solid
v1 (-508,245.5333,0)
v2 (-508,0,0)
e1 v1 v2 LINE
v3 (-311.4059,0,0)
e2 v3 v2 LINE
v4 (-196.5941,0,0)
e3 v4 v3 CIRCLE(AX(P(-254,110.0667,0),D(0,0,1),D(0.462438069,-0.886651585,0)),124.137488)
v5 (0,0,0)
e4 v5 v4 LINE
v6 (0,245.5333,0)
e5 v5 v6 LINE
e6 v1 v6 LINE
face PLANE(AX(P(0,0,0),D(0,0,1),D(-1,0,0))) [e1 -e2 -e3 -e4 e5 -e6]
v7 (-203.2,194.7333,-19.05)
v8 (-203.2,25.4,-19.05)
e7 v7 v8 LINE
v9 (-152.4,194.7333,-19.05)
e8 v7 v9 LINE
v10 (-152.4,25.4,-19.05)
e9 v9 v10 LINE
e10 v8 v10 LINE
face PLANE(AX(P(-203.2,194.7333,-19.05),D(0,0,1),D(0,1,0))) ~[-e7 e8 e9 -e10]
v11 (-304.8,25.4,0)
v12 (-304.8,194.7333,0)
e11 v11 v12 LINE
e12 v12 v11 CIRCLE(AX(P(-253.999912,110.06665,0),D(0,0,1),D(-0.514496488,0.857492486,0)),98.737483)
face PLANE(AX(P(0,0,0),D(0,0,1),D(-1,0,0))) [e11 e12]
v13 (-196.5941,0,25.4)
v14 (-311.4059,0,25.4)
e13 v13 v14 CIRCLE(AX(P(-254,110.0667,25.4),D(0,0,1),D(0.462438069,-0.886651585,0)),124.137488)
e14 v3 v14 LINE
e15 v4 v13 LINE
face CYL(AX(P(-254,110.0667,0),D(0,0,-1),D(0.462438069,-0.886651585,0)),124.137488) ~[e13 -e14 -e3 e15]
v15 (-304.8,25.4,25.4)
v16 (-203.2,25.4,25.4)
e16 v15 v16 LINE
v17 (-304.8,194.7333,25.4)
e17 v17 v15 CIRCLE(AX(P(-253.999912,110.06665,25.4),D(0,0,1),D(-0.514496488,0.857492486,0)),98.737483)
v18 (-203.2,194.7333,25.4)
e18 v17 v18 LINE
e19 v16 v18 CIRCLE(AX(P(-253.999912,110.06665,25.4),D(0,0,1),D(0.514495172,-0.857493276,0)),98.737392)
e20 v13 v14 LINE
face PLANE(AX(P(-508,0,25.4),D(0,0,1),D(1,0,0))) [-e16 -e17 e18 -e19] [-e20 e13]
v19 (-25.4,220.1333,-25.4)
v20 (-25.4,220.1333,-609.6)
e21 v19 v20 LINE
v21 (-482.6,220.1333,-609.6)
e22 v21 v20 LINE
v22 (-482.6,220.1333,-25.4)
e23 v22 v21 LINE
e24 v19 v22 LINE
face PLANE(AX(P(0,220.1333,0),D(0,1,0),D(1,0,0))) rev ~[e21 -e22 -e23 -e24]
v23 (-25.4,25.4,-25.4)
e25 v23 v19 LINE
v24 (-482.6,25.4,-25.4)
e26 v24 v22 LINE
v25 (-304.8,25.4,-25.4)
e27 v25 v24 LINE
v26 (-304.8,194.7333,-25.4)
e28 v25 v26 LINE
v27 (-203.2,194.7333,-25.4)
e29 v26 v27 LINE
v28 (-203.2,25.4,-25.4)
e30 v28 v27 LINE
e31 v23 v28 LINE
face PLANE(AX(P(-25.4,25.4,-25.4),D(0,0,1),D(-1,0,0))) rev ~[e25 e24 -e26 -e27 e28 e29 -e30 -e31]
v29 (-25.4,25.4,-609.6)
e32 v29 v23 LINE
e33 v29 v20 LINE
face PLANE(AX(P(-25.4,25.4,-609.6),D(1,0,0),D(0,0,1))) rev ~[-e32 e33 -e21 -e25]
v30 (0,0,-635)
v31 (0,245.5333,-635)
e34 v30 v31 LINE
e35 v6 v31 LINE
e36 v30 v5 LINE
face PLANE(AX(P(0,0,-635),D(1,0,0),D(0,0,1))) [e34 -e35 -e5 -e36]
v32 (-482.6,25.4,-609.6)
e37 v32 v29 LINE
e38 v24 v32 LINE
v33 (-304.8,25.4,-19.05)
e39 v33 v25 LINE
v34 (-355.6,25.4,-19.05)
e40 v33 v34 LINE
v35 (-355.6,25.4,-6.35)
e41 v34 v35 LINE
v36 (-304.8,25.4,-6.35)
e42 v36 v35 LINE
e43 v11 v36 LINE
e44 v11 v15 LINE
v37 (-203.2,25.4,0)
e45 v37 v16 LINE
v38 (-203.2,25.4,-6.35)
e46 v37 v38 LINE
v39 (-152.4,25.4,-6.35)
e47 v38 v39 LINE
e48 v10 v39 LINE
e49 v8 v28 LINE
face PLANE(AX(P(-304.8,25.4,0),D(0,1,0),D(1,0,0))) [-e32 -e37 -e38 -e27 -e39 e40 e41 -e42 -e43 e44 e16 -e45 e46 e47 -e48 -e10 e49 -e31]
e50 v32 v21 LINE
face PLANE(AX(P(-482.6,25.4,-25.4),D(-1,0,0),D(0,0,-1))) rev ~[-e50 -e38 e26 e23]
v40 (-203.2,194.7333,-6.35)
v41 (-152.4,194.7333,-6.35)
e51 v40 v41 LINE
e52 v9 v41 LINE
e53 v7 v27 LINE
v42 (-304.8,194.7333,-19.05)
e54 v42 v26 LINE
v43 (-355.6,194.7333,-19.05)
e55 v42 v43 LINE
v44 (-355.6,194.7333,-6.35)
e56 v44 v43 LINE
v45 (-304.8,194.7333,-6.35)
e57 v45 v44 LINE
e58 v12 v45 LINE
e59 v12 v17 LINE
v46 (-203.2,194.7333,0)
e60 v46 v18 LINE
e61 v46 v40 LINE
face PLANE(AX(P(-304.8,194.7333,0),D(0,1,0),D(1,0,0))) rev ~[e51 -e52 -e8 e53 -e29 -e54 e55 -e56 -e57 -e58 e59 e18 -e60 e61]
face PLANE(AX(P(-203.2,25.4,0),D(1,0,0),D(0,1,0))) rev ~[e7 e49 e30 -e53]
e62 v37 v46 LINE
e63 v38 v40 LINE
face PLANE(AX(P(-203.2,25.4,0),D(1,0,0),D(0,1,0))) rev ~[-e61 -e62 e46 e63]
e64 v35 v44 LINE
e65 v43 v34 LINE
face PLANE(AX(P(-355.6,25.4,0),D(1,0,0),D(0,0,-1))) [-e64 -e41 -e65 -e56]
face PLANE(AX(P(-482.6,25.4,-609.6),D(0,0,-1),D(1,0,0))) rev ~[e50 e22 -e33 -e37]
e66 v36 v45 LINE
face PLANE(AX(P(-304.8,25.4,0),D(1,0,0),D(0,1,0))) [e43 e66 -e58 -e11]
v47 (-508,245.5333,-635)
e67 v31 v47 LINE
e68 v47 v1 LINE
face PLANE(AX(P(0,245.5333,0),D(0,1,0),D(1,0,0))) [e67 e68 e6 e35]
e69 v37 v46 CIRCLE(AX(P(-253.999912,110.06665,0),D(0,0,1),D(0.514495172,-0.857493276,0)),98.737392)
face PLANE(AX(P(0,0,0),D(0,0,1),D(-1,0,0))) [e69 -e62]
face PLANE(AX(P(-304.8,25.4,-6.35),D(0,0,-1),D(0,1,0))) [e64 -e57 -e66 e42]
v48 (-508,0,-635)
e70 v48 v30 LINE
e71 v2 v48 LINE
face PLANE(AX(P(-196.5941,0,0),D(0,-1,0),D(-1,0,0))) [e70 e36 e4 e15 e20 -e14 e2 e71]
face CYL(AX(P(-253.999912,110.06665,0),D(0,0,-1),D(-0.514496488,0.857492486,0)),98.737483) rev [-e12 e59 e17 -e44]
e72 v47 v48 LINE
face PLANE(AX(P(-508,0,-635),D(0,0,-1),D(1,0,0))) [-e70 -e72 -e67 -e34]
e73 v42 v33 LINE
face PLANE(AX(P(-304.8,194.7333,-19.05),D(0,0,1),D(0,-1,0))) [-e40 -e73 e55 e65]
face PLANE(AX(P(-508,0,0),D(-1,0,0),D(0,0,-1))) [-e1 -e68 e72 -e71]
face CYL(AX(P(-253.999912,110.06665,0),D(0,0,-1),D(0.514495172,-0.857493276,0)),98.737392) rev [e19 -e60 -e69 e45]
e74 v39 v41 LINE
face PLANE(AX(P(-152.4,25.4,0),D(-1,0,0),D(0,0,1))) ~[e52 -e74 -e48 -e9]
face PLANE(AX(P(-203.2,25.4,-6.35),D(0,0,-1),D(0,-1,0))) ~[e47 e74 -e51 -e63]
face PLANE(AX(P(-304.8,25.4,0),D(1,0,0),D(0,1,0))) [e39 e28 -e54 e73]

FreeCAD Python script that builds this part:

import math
import FreeCAD as App
import Part
import Sketcher
from FreeCAD import Vector
Q = App.Units.Quantity

doc = App.newDocument("Part")
body = doc.addObject("PartDesign::Body", "Body")

# Sketch on XZ plane
sketch1 = body.newObject("Sketcher::SketchObject", "Sketch")
sketch1.AttachmentSupport = (doc.getObject("XZ_Plane"), [""])
sketch1.MapMode = "FlatFace"
sketch1.addGeometry(Part.LineSegment(Vector(-508, 0, 0), Vector(0, 0, 0)), False)
sketch1.addGeometry(Part.LineSegment(Vector(0, 0, 0), Vector(0, -635, 0)), False)
sketch1.addGeometry(Part.LineSegment(Vector(0, -635, 0), Vector(-508, -635, 0)), False)
sketch1.addGeometry(Part.LineSegment(Vector(-508, -635, 0), Vector(-508, 0, 0)), False)
sketch1.addConstraint(Sketcher.Constraint("Coincident", 0, 2, 1, 1))
sketch1.addConstraint(Sketcher.Constraint("Coincident", 1, 2, 2, 1))
sketch1.addConstraint(Sketcher.Constraint("Coincident", 2, 2, 3, 1))
sketch1.addConstraint(Sketcher.Constraint("Coincident", 3, 2, 0, 1))
sketch1.addConstraint(Sketcher.Constraint("Horizontal", 0))
sketch1.addConstraint(Sketcher.Constraint("Vertical", 1))
sketch1.addConstraint(Sketcher.Constraint("Horizontal", 2))
sketch1.addConstraint(Sketcher.Constraint("Vertical", 3))
sketch1.addConstraint(Sketcher.Constraint("Coincident", 0, 2, -1, 1))
sketch1.addConstraint(Sketcher.Constraint("DistanceX", 0, 1, 0, 2, Q("20 in")))
sketch1.addConstraint(Sketcher.Constraint("DistanceY", 1, 2, 1, 1, Q("25 in")))
pad1 = body.newObject("PartDesign::Pad", "Pad")
pad1.Profile = sketch1
pad1.Length = Q("1 in")
pad1.Reversed = True

# Sketch on XZ plane
sketch2 = body.newObject("Sketcher::SketchObject", "Sketch001")
sketch2.AttachmentSupport = (doc.getObject("XZ_Plane"), [""])
sketch2.MapMode = "FlatFace"
sketch2.AttachmentOffset = App.Placement(Vector(0, 0, -1 * 25.4), App.Rotation())
sketch2.addGeometry(Part.LineSegment(Vector(-508, -635, 0), Vector(-508, 0, 0)), False)
sketch2.addGeometry(Part.LineSegment(Vector(-508, 0, 0), Vector(0, 0, 0)), False)
sketch2.addGeometry(Part.LineSegment(Vector(0, 0, 0), Vector(0, -635, 0)), False)
sketch2.addGeometry(Part.LineSegment(Vector(0, -635, 0), Vector(-508, -635, 0)), False)
sketch2.addGeometry(Part.LineSegment(Vector(-25, -610, 0), Vector(-25, -25, 0)), False)
sketch2.addGeometry(Part.LineSegment(Vector(-25, -25, 0), Vector(-483, -25, 0)), False)
sketch2.addGeometry(Part.LineSegment(Vector(-483, -25, 0), Vector(-483, -610, 0)), False)
sketch2.addGeometry(Part.LineSegment(Vector(-483, -610, 0), Vector(-25, -610, 0)), False)
sketch2.addConstraint(Sketcher.Constraint("Coincident", 0, 2, 1, 1))
sketch2.addConstraint(Sketcher.Constraint("Coincident", 1, 2, 2, 1))
sketch2.addConstraint(Sketcher.Constraint("Coincident", 2, 2, 3, 1))
sketch2.addConstraint(Sketcher.Constraint("Coincident", 3, 2, 0, 1))
sketch2.addConstraint(Sketcher.Constraint("Coincident", 4, 2, 5, 1))
sketch2.addConstraint(Sketcher.Constraint("Coincident", 5, 2, 6, 1))
sketch2.addConstraint(Sketcher.Constraint("Coincident", 6, 2, 7, 1))
sketch2.addConstraint(Sketcher.Constraint("Coincident", 7, 2, 4, 1))
sketch2.addConstraint(Sketcher.Constraint("Vertical", 0))
sketch2.addConstraint(Sketcher.Constraint("Horizontal", 1))
sketch2.addConstraint(Sketcher.Constraint("Vertical", 2))
sketch2.addConstraint(Sketcher.Constraint("Horizontal", 3))
sketch2.addConstraint(Sketcher.Constraint("Vertical", 4))
sketch2.addConstraint(Sketcher.Constraint("Horizontal", 5))
sketch2.addConstraint(Sketcher.Constraint("Vertical", 6))
sketch2.addConstraint(Sketcher.Constraint("Horizontal", 7))
sketch2.addConstraint(Sketcher.Constraint("Coincident", 1, 2, -1, 1))
sketch2.addConstraint(Sketcher.Constraint("DistanceX", 4, 2, -1, 1, Q("1 in")))
sketch2.addConstraint(Sketcher.Constraint("DistanceY", 4, 2, -1, 1, Q("1 in")))
sketch2.addConstraint(Sketcher.Constraint("DistanceX", 0, 2, 5, 2, Q("1 in")))
sketch2.addConstraint(Sketcher.Constraint("DistanceY", 3, 2, 6, 2, Q("1 in")))
sketch2.addConstraint(Sketcher.Constraint("DistanceX", 1, 1, 1, 2, Q("20 in")))
sketch2.addConstraint(Sketcher.Constraint("DistanceY", 0, 1, 0, 2, Q("25 in")))
pad2 = body.newObject("PartDesign::Pad", "Pad001")
pad2.Profile = sketch2
pad2.Length = 220.1333
pad2.Reversed = True

# Sketch on XY plane
sketch3 = body.newObject("Sketcher::SketchObject", "Sketch002")
sketch3.AttachmentSupport = (doc.getObject("XY_Plane"), [""])
sketch3.MapMode = "FlatFace"
sketch3.addGeometry(Part.LineSegment(Vector(-305, 195, 0), Vector(-305, 25, 0)), False)
sketch3.addGeometry(Part.LineSegment(Vector(-305, 25, 0), Vector(-203, 25, 0)), False)
sketch3.addGeometry(Part.LineSegment(Vector(-203, 25, 0), Vector(-203, 195, 0)), False)
sketch3.addGeometry(Part.LineSegment(Vector(-203, 195, 0), Vector(-305, 195, 0)), False)
sketch3.addConstraint(Sketcher.Constraint("Coincident", 0, 2, 1, 1))
sketch3.addConstraint(Sketcher.Constraint("Coincident", 1, 2, 2, 1))
sketch3.addConstraint(Sketcher.Constraint("Coincident", 2, 2, 3, 1))
sketch3.addConstraint(Sketcher.Constraint("Coincident", 3, 2, 0, 1))
sketch3.addConstraint(Sketcher.Constraint("Vertical", 0))
sketch3.addConstraint(Sketcher.Constraint("Horizontal", 1))
sketch3.addConstraint(Sketcher.Constraint("Vertical", 2))
sketch3.addConstraint(Sketcher.Constraint("Horizontal", 3))
sketch3.addConstraint(Sketcher.Constraint("DistanceX", 1, 1, 1, 2, Q("4 in")))
sketch3.addConstraint(Sketcher.Constraint("DistanceX", 0, 2, -1, 1, Q("12 in")))
sketch3.addConstraint(Sketcher.Constraint("DistanceY", -1, 1, 0, 2, Q("1 in")))
sketch3.addConstraint(Sketcher.Constraint("DistanceY", 0, 2, 0, 1, 169.3333))
pocket1 = body.newObject("PartDesign::Pocket", "Pocket")
pocket1.Profile = sketch3
pocket1.Length = 220.1333

# Sketch on XZ plane
sketch4 = body.newObject("Sketcher::SketchObject", "Sketch003")
sketch4.AttachmentSupport = (doc.getObject("XZ_Plane"), [""])
sketch4.MapMode = "FlatFace"
sketch4.AttachmentOffset = App.Placement(Vector(0, 0, -245.5333), App.Rotation())
sketch4.addGeometry(Part.LineSegment(Vector(-483, -610, 0), Vector(-483, -25, 0)), False)
sketch4.addGeometry(Part.LineSegment(Vector(-483, -25, 0), Vector(-25, -25, 0)), False)
sketch4.addGeometry(Part.LineSegment(Vector(-25, -25, 0), Vector(-25, -610, 0)), False)
sketch4.addGeometry(Part.LineSegment(Vector(-25, -610, 0), Vector(-483, -610, 0)), False)
sketch4.addConstraint(Sketcher.Constraint("Coincident", 0, 2, 1, 1))
sketch4.addConstraint(Sketcher.Constraint("Coincident", 1, 2, 2, 1))
sketch4.addConstraint(Sketcher.Constraint("Coincident", 2, 2, 3, 1))
sketch4.addConstraint(Sketcher.Constraint("Coincident", 3, 2, 0, 1))
sketch4.addConstraint(Sketcher.Constraint("Vertical", 0))
sketch4.addConstraint(Sketcher.Constraint("Horizontal", 1))
sketch4.addConstraint(Sketcher.Constraint("Vertical", 2))
sketch4.addConstraint(Sketcher.Constraint("Horizontal", 3))
sketch4.addConstraint(Sketcher.Constraint("DistanceX", 1, 1, 1, 2, Q("18 in")))
sketch4.addConstraint(Sketcher.Constraint("DistanceY", 0, 1, 0, 2, Q("23 in")))
sketch4.addConstraint(Sketcher.Constraint("DistanceX", 0, 2, -1, 1, Q("19 in")))
sketch4.addConstraint(Sketcher.Constraint("DistanceY", 0, 2, -1, 1, Q("1 in")))
pad3 = body.newObject("PartDesign::Pad", "Pad002")
pad3.Profile = sketch4
pad3.Length = Q("1 in")

# Sketch on YZ plane
sketch5 = body.newObject("Sketcher::SketchObject", "Sketch004")
sketch5.AttachmentSupport = (doc.getObject("YZ_Plane"), [""])
sketch5.MapMode = "FlatFace"
sketch5.AttachmentOffset = App.Placement(Vector(0, 0, -12 * 25.4), App.Rotation())
sketch5.addGeometry(Part.LineSegment(Vector(195, -19, 0), Vector(195, -6, 0)), False)
sketch5.addGeometry(Part.LineSegment(Vector(195, -6, 0), Vector(25, -6, 0)), False)
sketch5.addGeometry(Part.LineSegment(Vector(25, -6, 0), Vector(25, -19, 0)), False)
sketch5.addGeometry(Part.LineSegment(Vector(25, -19, 0), Vector(195, -19, 0)), False)
sketch5.addConstraint(Sketcher.Constraint("Coincident", 0, 2, 1, 1))
sketch5.addConstraint(Sketcher.Constraint("Coincident", 1, 2, 2, 1))
sketch5.addConstraint(Sketcher.Constraint("Coincident", 2, 2, 3, 1))
sketch5.addConstraint(Sketcher.Constraint("Coincident", 3, 2, 0, 1))
sketch5.addConstraint(Sketcher.Constraint("Vertical", 0))
sketch5.addConstraint(Sketcher.Constraint("Horizontal", 1))
sketch5.addConstraint(Sketcher.Constraint("Vertical", 2))
sketch5.addConstraint(Sketcher.Constraint("Horizontal", 3))
sketch5.addConstraint(Sketcher.Constraint("DistanceY", 0, 1, 0, 2, Q("0.5 in")))
sketch5.addConstraint(Sketcher.Constraint("DistanceY", 0, 2, -1, 1, Q("0.25 in")))
sketch5.addConstraint(Sketcher.Constraint("DistanceX", -1, 1, 1, 2, Q("1 in")))
sketch5.addConstraint(Sketcher.Constraint("DistanceX", 1, 2, 1, 1, 169.3333))
pocket2 = body.newObject("PartDesign::Pocket", "Pocket001")
pocket2.Profile = sketch5
pocket2.Length = Q("2 in")
doc.recompute()

datumplane = body.newObject("PartDesign::Plane", "DatumPlane")
datumplane.AttachmentSupport = (doc.getObject("YZ_Plane"), [""])
datumplane.MapMode = "FlatFace"
datumplane.AttachmentOffset = App.Placement(Vector(0, 0, -10 * 25.4), App.Rotation())
mirrored = body.newObject("PartDesign::Mirrored", "Mirrored")
mirrored.Originals = [pocket2]
mirrored.MirrorPlane = (datumplane, [""])
body.Tip = mirrored

# Sketch on XY plane
sketch6 = body.newObject("Sketcher::SketchObject", "Sketch005")
sketch6.AttachmentSupport = (doc.getObject("XY_Plane"), [""])
sketch6.MapMode = "FlatFace"
sketch6.addGeometry(Part.LineSegment(Vector(-311, 0, 0), Vector(-197, 0, 0)), False)
sketch6.addGeometry(Part.ArcOfCircle(Part.Circle(Vector(-254, 110, 0), Vector(0, 0, 1), 124), math.radians(-62), math.radians(242)), False)
sketch6.addGeometry(Part.ArcOfCircle(Part.Circle(Vector(-254, 110, 0), Vector(0, 0, 1), 99), math.radians(121), math.radians(239)), False)
sketch6.addGeometry(Part.LineSegment(Vector(-305, 195, 0), Vector(-203, 195, 0)), False)
sketch6.addGeometry(Part.ArcOfCircle(Part.Circle(Vector(-254, 110, 0), Vector(0, 0, 1), 99), math.radians(-59), math.radians(59)), False)
sketch6.addGeometry(Part.LineSegment(Vector(-203, 25, 0), Vector(-305, 25, 0)), False)
sketch6.addConstraint(Sketcher.Constraint("Coincident", 0, 1, 1, 2))
sketch6.addConstraint(Sketcher.Constraint("Coincident", 1, 1, 0, 2))
sketch6.addConstraint(Sketcher.Constraint("Coincident", 2, 1, 3, 1))
sketch6.addConstraint(Sketcher.Constraint("Coincident", 3, 2, 4, 2))
sketch6.addConstraint(Sketcher.Constraint("Coincident", 4, 1, 5, 1))
sketch6.addConstraint(Sketcher.Constraint("Coincident", 5, 2, 2, 2))
sketch6.addConstraint(Sketcher.Constraint("Horizontal", 0))
sketch6.addConstraint(Sketcher.Constraint("Horizontal", 3))
sketch6.addConstraint(Sketcher.Constraint("Horizontal", 5))
sketch6.addConstraint(Sketcher.Constraint("Coincident", 2, 3, 1, 3))
sketch6.addConstraint(Sketcher.Constraint("Coincident", 4, 3, 1, 3))
sketch6.addConstraint(Sketcher.Constraint("Equal", 2, 4))
sketch6.addConstraint(Sketcher.Constraint("PointOnObject", 0, 1, -1))
sketch6.addConstraint(Sketcher.Constraint("Vertical", 3, 2, 4, 1))
sketch6.addConstraint(Sketcher.Constraint("DistanceX", 3, 1, 3, 2, Q("4 in")))
sketch6.addConstraint(Sketcher.Constraint("DistanceY", -1, 1, 4, 1, Q("1 in")))
sketch6.addConstraint(Sketcher.Constraint("DistanceX", 1, 3, -1, 1, Q("10 in")))
sketch6.addConstraint(Sketcher.Constraint("Radius", 1, Q("4.8873 in")))
sketch6.addConstraint(Sketcher.Constraint("Radius", 2, Q("3.8873 in")))
pad4 = body.newObject("PartDesign::Pad", "Pad003")
pad4.Profile = sketch6
pad4.Length = Q("1 in")

doc.recompute()
